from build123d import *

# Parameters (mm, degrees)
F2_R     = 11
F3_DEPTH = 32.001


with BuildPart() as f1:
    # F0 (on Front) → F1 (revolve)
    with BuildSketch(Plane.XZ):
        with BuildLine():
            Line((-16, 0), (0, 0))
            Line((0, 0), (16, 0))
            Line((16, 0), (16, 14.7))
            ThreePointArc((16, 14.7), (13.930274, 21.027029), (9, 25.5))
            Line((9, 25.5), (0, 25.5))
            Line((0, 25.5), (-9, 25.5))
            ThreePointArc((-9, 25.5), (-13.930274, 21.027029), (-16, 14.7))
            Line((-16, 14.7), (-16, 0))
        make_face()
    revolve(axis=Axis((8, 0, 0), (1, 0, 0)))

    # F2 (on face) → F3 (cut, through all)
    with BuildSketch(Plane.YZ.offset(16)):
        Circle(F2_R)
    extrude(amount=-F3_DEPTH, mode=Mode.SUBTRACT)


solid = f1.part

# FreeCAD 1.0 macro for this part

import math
import FreeCAD as App
import Part
import Sketcher
from FreeCAD import Vector

doc = App.newDocument("Part")
body = doc.addObject("PartDesign::Body", "Body")

# Sketch on XZ plane
sketch1 = doc.addObject("Sketcher::SketchObject", "Sketch")
body.addObject(sketch1)
sketch1.AttachmentSupport = (doc.XZ_Plane, [""])
sketch1.MapMode = "FlatFace"
sketch1.addGeometry([
    Part.LineSegment(Vector(-16, 0, 0), Vector(16, 0, 0)),  # 0
    Part.LineSegment(Vector(16, 0, 0), Vector(16, 15, 0)),  # 1
    Part.ArcOfCircle(Part.Circle(Vector(3, 14, 0), Vector(0, 0, 1), 13), math.radians(3), math.radians(63)),  # 2
    Part.LineSegment(Vector(9, 26, 0), Vector(-9, 26, 0)),  # 3
    Part.ArcOfCircle(Part.Circle(Vector(-3, 14, 0), Vector(0, 0, 1), 13), math.radians(117), math.radians(177)),  # 4
    Part.LineSegment(Vector(-16, 15, 0), Vector(-16, 0, 0)),  # 5
], False)
sketch1.addConstraint([
    Sketcher.Constraint("Coincident", 0, 2, 1, 1),
    Sketcher.Constraint("Coincident", 1, 2, 2, 1),
    Sketcher.Constraint("Coincident", 2, 2, 3, 1),
    Sketcher.Constraint("Coincident", 3, 2, 4, 1),
    Sketcher.Constraint("Coincident", 4, 2, 5, 1),
    Sketcher.Constraint("Coincident", 5, 2, 0, 1),
    Sketcher.Constraint("Horizontal", 0),
    Sketcher.Constraint("Vertical", 1),
    Sketcher.Constraint("Horizontal", 3),
    Sketcher.Constraint("Vertical", 5),
    Sketcher.Constraint("Equal", 2, 4),
    Sketcher.Constraint("Symmetric", 0, 2, 5, 2, -1, 1),
    Sketcher.Constraint("Symmetric", 2, 3, 4, 3, -2),
    Sketcher.Constraint("Radius", 2, 13.000001),
    Sketcher.Constraint("DistanceX", 0, 1, 0, 2, 32.0),
    Sketcher.Constraint("DistanceX", 3, 2, 3, 1, 18.0),
    Sketcher.Constraint("DistanceY", 1, 1, 1, 2, 14.7),
    Sketcher.Constraint("DistanceY", -1, 1, 2, 2, 25.5),
])
revolution = doc.addObject("PartDesign::Revolution", "Revolution")
body.addObject(revolution)
revolution.Profile = sketch1
revolution.ReferenceAxis = (sketch1, ["H_Axis"])
revolution.Angle = 360

# Sketch on YZ plane
sketch2 = doc.addObject("Sketcher::SketchObject", "Sketch001")
body.addObject(sketch2)
sketch2.AttachmentSupport = (doc.YZ_Plane, [""])
sketch2.MapMode = "FlatFace"
sketch2.AttachmentOffset = App.Placement(Vector(0, 0, 16), App.Rotation())
sketch2.addGeometry(Part.Circle(Vector(0, 0, 0), Vector(0, 0, 1), 11), False)
sketch2.addConstraint([
    Sketcher.Constraint("Coincident", 0, 3, -1, 1),
    Sketcher.Constraint("Diameter", 0, 22.0),
])
pocket1 = doc.addObject("PartDesign::Pocket", "Pocket")
body.addObject(pocket1)
pocket1.Profile = sketch2
pocket1.Type = "ThroughAll"

doc.recompute()
